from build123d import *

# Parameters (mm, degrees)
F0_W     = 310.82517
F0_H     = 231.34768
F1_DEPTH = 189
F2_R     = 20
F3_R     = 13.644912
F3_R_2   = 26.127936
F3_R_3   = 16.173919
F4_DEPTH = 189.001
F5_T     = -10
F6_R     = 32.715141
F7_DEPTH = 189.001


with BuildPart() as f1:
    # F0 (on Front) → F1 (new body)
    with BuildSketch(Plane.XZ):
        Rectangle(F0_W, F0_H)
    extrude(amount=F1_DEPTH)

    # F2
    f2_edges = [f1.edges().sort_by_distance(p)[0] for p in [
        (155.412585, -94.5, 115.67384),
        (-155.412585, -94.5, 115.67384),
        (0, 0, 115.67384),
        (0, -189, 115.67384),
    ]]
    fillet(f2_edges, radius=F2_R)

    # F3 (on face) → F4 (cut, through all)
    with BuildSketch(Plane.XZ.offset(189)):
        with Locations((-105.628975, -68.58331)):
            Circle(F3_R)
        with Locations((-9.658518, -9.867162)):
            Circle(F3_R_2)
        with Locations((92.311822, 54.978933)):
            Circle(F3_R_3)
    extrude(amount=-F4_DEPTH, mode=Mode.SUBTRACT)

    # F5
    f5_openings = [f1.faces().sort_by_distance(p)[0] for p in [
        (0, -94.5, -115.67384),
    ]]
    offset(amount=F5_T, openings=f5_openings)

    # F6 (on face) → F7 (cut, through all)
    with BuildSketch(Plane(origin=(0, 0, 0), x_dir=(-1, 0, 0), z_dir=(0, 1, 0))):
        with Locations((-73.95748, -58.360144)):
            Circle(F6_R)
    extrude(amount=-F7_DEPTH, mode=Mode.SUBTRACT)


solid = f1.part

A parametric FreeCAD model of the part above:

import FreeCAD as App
import Part
import Sketcher
Q = App.Units.Quantity


def edges_at(feature, points):
    """Names of the edges that pass closest to the given points."""
    edges = feature.Shape.Edges
    near = lambda p: min(range(len(edges)), key=lambda i: edges[i].distToShape(Part.Vertex(*p))[0])
    return sorted({f"Edge{near(p) + 1}" for p in points})


def faces_at(feature, points):
    """Names of the faces that lie closest to the given points."""
    faces = feature.Shape.Faces
    near = lambda p: min(range(len(faces)), key=lambda i: faces[i].distToShape(Part.Vertex(*p))[0])
    return sorted({f"Face{near(p) + 1}" for p in points})

doc = App.newDocument("Part")
body = doc.addObject("PartDesign::Body", "Body")

# Sketch on XZ plane
sketch1 = body.newObject("Sketcher::SketchObject", "Sketch")
sketch1.AttachmentSupport = (doc.getObject("XZ_Plane"), [""])
sketch1.MapMode = "FlatFace"
sketch1.addGeometry([
    Part.LineSegment(App.Vector(-155, 116, 0), App.Vector(-155, -116, 0)),
    Part.LineSegment(App.Vector(-155, -116, 0), App.Vector(155, -116, 0)),
    Part.LineSegment(App.Vector(155, -116, 0), App.Vector(155, 116, 0)),
    Part.LineSegment(App.Vector(155, 116, 0), App.Vector(-155, 116, 0)),
], False)
sketch1.addConstraint([
    Sketcher.Constraint("Coincident", 0, 2, 1, 1),
    Sketcher.Constraint("Coincident", 1, 2, 2, 1),
    Sketcher.Constraint("Coincident", 2, 2, 3, 1),
    Sketcher.Constraint("Coincident", 3, 2, 0, 1),
    Sketcher.Constraint("Vertical", 0),
    Sketcher.Constraint("Horizontal", 1),
    Sketcher.Constraint("Vertical", 2),
    Sketcher.Constraint("Horizontal", 3),
    Sketcher.Constraint("Symmetric", 0, 2, 2, 2, -1, 1),
    Sketcher.Constraint("DistanceX", 1, 1, 1, 2, Q("310.82517 mm")),
    Sketcher.Constraint("DistanceY", 0, 2, 0, 1, Q("231.34768 mm")),
])
pad1 = body.newObject("PartDesign::Pad", "Pad")
pad1.Profile = sketch1
pad1.Length = 189
doc.recompute()

fillet = body.newObject("PartDesign::Fillet", "Fillet")
fillet.Base = (pad1, edges_at(pad1, [
    (155.413, -94.5, 115.674),
    (-155.413, -94.5, 115.674),
    (0, 0, 115.674),
    (0, -189, 115.674),
]))
fillet.Radius = 20

# Sketch on XZ plane
sketch2 = body.newObject("Sketcher::SketchObject", "Sketch001")
sketch2.AttachmentSupport = (doc.getObject("XZ_Plane"), [""])
sketch2.MapMode = "FlatFace"
sketch2.AttachmentOffset = App.Placement(App.Vector(0, 0, 189), App.Rotation())
sketch2.addGeometry([
    Part.Circle(App.Vector(-106, -69, 0), App.Vector(0, 0, 1), 14),
    Part.Circle(App.Vector(-10, -10, 0), App.Vector(0, 0, 1), 26),
    Part.Circle(App.Vector(92, 55, 0), App.Vector(0, 0, 1), 16),
], False)
sketch2.addConstraint([
    Sketcher.Constraint("Diameter", 1, Q("52.255872 mm")),
    Sketcher.Constraint("Diameter", 2, Q("32.347838 mm")),
    Sketcher.Constraint("Diameter", 0, Q("27.289824 mm")),
    Sketcher.Constraint("DistanceY", 0, 3, -1, 1, Q("68.58331 mm")),
    Sketcher.Constraint("DistanceX", 1, 3, -1, 1, Q("9.658518 mm")),
    Sketcher.Constraint("DistanceX", 1, 3, 2, 3, Q("101.97034 mm")),
    Sketcher.Constraint("DistanceX", 0, 3, -1, 1, Q("105.628975 mm")),
    Sketcher.Constraint("DistanceY", 1, 3, -1, 1, Q("9.867162 mm")),
    Sketcher.Constraint("DistanceY", -1, 1, 2, 3, Q("54.978933 mm")),
])
pocket1 = body.newObject("PartDesign::Pocket", "Pocket")
pocket1.Profile = sketch2
pocket1.Type = "ThroughAll"
doc.recompute()

thickness = body.newObject("PartDesign::Thickness", "Thickness")
thickness.Base = (pocket1, faces_at(pocket1, [(0, -94.5, -115.674)]))
thickness.Value = 10
thickness.Reversed = True
thickness.Join = "Arc"

# Sketch on XZ plane
sketch3 = body.newObject("Sketcher::SketchObject", "Sketch002")
sketch3.AttachmentSupport = (doc.getObject("XZ_Plane"), [""])
sketch3.MapMode = "FlatFace"
sketch3.addGeometry(Part.Circle(App.Vector(74, -58, 0), App.Vector(0, 0, 1), 33), False)
sketch3.addConstraint([
    Sketcher.Constraint("Diameter", 0, Q("65.430282 mm")),
    Sketcher.Constraint("DistanceX", -1, 1, 0, 3, Q("73.95748 mm")),
    Sketcher.Constraint("DistanceY", 0, 3, -1, 1, Q("58.360144 mm")),
])
pocket2 = body.newObject("PartDesign::Pocket", "Pocket001")
pocket2.Profile = sketch3
pocket2.Type = "ThroughAll"
pocket2.Reversed = True

doc.recompute()
